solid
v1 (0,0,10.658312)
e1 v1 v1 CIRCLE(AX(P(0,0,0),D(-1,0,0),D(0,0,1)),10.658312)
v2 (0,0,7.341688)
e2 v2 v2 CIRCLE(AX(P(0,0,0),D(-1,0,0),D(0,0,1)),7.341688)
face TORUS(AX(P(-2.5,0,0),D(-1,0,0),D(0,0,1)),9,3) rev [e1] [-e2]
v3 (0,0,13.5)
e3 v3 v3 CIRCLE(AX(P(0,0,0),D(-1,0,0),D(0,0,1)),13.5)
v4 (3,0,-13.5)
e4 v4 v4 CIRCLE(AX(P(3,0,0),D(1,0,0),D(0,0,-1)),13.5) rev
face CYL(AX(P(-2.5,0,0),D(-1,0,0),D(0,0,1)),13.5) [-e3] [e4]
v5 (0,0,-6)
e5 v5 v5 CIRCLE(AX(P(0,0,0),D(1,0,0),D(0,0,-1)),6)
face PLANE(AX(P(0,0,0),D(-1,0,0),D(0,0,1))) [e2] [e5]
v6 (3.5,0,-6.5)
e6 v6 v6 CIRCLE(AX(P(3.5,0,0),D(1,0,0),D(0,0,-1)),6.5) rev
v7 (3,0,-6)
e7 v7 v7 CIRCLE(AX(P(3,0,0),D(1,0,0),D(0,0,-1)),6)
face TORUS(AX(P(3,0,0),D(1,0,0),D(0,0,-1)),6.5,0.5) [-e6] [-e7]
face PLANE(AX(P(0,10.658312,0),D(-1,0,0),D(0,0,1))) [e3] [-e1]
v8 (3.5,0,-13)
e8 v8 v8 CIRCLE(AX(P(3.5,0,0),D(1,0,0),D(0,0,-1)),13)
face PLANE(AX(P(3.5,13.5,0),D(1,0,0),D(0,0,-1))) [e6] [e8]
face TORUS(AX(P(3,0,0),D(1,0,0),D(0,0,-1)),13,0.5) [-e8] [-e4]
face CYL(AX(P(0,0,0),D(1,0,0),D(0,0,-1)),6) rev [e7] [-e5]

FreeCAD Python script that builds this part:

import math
import FreeCAD as App
import Part
import Sketcher
Q = App.Units.Quantity


def edges_at(feature, points):
    """Names of the edges that pass closest to the given points."""
    edges = feature.Shape.Edges
    near = lambda p: min(range(len(edges)), key=lambda i: edges[i].distToShape(Part.Vertex(*p))[0])
    return sorted({f"Edge{near(p) + 1}" for p in points})

doc = App.newDocument("Part")
body = doc.addObject("PartDesign::Body", "Body")

# Sketch on XY plane
sketch1 = body.newObject("Sketcher::SketchObject", "Sketch")
sketch1.AttachmentSupport = (doc.getObject("XY_Plane"), [""])
sketch1.MapMode = "FlatFace"
sketch1.addGeometry(Part.LineSegment(App.Vector(0, 7.341688, 0), App.Vector(0, 0, 0)), False)
sketch1.addGeometry(Part.LineSegment(App.Vector(0, 0, 0), App.Vector(3.5, 0, 0)), False)
sketch1.addGeometry(Part.LineSegment(App.Vector(3.5, 0, 0), App.Vector(3.5, 13.5, 0)), False)
sketch1.addGeometry(Part.LineSegment(App.Vector(3.5, 13.5, 0), App.Vector(0, 13.5, 0)), False)
sketch1.addGeometry(Part.LineSegment(App.Vector(0, 13.5, 0), App.Vector(0, 10.658312, 0)), False)
sketch1.addGeometry(Part.ArcOfCircle(Part.Circle(App.Vector(-2.5, 9, 0), App.Vector(0, 0, 1), 3), math.radians(-33.55731), math.radians(33.55731)), False)
sketch1.addConstraint(Sketcher.Constraint("Coincident", 0, 2, 1, 1))
sketch1.addConstraint(Sketcher.Constraint("Coincident", 1, 2, 2, 1))
sketch1.addConstraint(Sketcher.Constraint("Coincident", 2, 2, 3, 1))
sketch1.addConstraint(Sketcher.Constraint("Coincident", 3, 2, 4, 1))
sketch1.addConstraint(Sketcher.Constraint("Coincident", 4, 2, 5, 2))
sketch1.addConstraint(Sketcher.Constraint("Coincident", 5, 1, 0, 1))
sketch1.addConstraint(Sketcher.Constraint("Vertical", 0))
sketch1.addConstraint(Sketcher.Constraint("Horizontal", 1))
sketch1.addConstraint(Sketcher.Constraint("Vertical", 2))
sketch1.addConstraint(Sketcher.Constraint("Horizontal", 3))
sketch1.addConstraint(Sketcher.Constraint("Vertical", 4))
sketch1.addConstraint(Sketcher.Constraint("Coincident", 0, 2, -1, 1))
sketch1.addConstraint(Sketcher.Constraint("PointOnObject", 3, 2, -2))
sketch1.addConstraint(Sketcher.Constraint("Radius", 5, Q("3 mm")))
sketch1.addConstraint(Sketcher.Constraint("DistanceX", 1, 1, 1, 2, Q("3.5 mm")))
sketch1.addConstraint(Sketcher.Constraint("DistanceY", 2, 1, 2, 2, Q("13.5 mm")))
sketch1.addConstraint(Sketcher.Constraint("DistanceY", -1, 1, 5, 3, Q("9 mm")))
sketch1.addConstraint(Sketcher.Constraint("DistanceX", 5, 3, 1, 2, Q("6 mm")))
revolution = body.newObject("PartDesign::Revolution", "Revolution")
revolution.Profile = sketch1
revolution.ReferenceAxis = (sketch1, ["H_Axis"])
revolution.Angle = 360
doc.recompute()

fillet = body.newObject("PartDesign::Fillet", "Fillet")
fillet.Base = (revolution, edges_at(revolution, [(3.5, 0, 13.5)]))
fillet.Radius = 0.5

# Sketch on YZ plane
sketch2 = body.newObject("Sketcher::SketchObject", "Sketch001")
sketch2.AttachmentSupport = (doc.getObject("YZ_Plane"), [""])
sketch2.MapMode = "FlatFace"
sketch2.AttachmentOffset = App.Placement(App.Vector(0, 0, 3.5), App.Rotation())
sketch2.addGeometry(Part.Circle(App.Vector(0, 0, 0), App.Vector(0, 0, 1), 6), False)
sketch2.addConstraint(Sketcher.Constraint("Coincident", 0, 3, -1, 1))
sketch2.addConstraint(Sketcher.Constraint("Diameter", 0, Q("12 mm")))
pocket1 = body.newObject("PartDesign::Pocket", "Pocket")
pocket1.Profile = sketch2
pocket1.Type = "ThroughAll"
doc.recompute()

fillet2 = body.newObject("PartDesign::Fillet", "Fillet001")
fillet2.Base = (pocket1, edges_at(pocket1, [(3.5, 0, 6)]))
fillet2.Radius = 0.5

doc.recompute()
